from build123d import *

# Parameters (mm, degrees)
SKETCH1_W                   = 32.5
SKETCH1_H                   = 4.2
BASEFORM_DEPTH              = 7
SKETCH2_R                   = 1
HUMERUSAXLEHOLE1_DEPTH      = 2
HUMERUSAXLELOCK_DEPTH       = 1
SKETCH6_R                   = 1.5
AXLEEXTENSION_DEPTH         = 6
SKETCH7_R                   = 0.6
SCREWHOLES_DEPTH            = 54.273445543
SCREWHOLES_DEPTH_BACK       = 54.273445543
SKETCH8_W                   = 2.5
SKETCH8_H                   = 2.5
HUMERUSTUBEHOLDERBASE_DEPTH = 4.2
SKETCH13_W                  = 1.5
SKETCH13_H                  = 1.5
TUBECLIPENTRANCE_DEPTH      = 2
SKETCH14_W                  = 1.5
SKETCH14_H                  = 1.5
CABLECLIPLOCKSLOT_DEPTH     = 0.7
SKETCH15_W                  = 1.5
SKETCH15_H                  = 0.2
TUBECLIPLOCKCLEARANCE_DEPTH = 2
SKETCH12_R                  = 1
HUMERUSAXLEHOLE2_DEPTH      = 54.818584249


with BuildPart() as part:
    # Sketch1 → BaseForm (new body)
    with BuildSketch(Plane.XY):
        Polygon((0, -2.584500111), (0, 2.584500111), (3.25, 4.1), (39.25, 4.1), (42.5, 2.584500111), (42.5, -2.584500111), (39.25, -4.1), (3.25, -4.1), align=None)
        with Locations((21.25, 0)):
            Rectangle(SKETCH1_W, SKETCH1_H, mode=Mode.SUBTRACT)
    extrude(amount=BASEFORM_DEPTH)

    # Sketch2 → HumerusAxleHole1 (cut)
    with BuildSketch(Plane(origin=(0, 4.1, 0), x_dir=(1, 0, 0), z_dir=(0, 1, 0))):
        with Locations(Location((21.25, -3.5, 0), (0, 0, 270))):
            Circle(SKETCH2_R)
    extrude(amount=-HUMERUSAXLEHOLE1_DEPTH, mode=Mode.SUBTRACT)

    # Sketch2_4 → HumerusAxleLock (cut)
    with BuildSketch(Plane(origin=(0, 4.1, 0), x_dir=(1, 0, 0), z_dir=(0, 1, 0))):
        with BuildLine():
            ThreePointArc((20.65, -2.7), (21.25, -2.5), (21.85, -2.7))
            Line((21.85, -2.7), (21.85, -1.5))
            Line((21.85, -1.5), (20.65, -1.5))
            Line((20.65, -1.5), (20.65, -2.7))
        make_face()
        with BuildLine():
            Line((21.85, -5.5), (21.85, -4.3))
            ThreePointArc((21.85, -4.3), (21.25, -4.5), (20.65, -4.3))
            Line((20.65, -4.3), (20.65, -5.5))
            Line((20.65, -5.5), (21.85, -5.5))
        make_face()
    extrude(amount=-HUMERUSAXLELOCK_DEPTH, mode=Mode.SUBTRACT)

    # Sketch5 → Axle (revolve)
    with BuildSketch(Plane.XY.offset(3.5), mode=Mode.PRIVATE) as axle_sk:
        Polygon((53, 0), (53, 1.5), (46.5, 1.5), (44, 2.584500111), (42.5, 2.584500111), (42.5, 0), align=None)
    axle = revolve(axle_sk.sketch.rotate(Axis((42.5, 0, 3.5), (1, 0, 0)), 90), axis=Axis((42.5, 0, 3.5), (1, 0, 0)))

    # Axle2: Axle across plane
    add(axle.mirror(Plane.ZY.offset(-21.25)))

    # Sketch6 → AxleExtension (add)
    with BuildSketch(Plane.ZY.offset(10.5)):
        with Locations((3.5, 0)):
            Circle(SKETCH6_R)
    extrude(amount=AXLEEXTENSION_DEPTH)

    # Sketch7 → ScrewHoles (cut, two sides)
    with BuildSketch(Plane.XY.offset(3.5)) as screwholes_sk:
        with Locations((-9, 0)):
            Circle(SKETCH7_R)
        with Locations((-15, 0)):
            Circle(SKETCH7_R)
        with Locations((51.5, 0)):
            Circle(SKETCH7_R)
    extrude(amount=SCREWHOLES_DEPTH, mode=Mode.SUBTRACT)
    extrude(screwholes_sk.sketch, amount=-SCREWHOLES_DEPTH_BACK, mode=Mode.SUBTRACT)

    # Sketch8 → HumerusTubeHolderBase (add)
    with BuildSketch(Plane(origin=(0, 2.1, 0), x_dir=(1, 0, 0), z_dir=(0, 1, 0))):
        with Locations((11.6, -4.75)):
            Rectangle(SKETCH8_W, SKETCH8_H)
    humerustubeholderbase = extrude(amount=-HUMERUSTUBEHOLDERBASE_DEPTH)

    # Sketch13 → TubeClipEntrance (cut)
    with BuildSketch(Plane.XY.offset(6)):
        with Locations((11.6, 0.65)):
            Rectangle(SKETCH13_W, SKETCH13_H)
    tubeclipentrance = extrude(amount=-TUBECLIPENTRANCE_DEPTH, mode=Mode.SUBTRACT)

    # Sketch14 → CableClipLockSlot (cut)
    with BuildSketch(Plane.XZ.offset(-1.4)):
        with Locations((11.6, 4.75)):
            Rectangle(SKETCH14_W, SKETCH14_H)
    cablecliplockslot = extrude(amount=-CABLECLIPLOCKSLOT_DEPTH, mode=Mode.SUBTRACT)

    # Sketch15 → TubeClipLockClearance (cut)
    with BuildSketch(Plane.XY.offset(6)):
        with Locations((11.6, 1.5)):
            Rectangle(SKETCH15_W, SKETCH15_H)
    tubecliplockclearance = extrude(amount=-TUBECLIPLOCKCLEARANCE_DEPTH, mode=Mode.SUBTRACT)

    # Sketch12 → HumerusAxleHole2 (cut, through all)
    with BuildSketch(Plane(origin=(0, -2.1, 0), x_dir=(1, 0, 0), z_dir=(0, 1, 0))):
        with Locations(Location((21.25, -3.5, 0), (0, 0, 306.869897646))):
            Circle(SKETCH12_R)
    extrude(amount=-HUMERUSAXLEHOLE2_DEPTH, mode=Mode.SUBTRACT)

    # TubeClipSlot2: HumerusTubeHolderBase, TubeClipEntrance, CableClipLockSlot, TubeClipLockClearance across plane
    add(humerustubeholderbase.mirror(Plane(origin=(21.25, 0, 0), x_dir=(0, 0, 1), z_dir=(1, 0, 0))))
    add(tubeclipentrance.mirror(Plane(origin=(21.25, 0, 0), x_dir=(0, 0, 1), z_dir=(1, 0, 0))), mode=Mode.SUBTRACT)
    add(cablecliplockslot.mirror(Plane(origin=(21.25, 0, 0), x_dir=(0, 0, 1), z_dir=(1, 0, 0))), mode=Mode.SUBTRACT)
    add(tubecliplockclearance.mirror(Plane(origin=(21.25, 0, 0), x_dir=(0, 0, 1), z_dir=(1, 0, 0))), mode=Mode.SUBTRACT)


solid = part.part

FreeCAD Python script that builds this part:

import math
import FreeCAD as App
import Part
import Sketcher
Q = App.Units.Quantity

doc = App.newDocument("Part")
params = doc.addObject("Spreadsheet::Sheet", "Params")
for row, (alias, value) in enumerate([
    ("sketch1_width", "36 mm"),
    ("sketch1_width2", "32.5 mm"),
    ("sketch1_height", "4.2 mm"),
    ("pad1_length", "7 mm"),
    ("sketch2_diameter", "2 mm"),
    ("pocket1_length", "2 mm"),
    ("sketch3_radius", "1 mm"),
    ("sketch3_width", "1.2 mm"),
    ("pocket2_length", "1 mm"),
    ("sketch4_width", "6.5 mm"),
    ("sketch4_width2", "1.5 mm"),
    ("sketch4_width3", "10.5 mm"),
    ("revolution_angle", "360 deg"),
    ("sketch5_diameter", "3 mm"),
    ("pad2_length", "6 mm"),
    ("sketch6_diameter", "1.2 mm"),
    ("sketch7_width", "2.5 mm"),
    ("pad3_length", "4.2 mm"),
    ("sketch8_width", "1.5 mm"),
    ("pocket4_length", "2 mm"),
    ("sketch9_width", "1.5 mm"),
    ("pocket5_length", "0.7 mm"),
    ("sketch10_width", "1.5 mm"),
    ("sketch10_height", "0.2 mm"),
    ("pocket6_length", "2 mm"),
    ("sketch11_diameter", "2 mm"),
], start=1):
    params.set(f"A{row}", alias)
    params.set(f"B{row}", "=" + value)
    params.setAlias(f"B{row}", alias)

body = doc.addObject("PartDesign::Body", "Body")

# Sketch on XY plane
sketch1 = body.newObject("Sketcher::SketchObject", "Sketch")
sketch1.AttachmentSupport = (doc.getObject("XY_Plane"), [""])
sketch1.MapMode = "FlatFace"
sketch1.addGeometry([
    Part.LineSegment(App.Vector(0, 2.5845, 0), App.Vector(0, -2.5845, 0)),  # 0
    Part.LineSegment(App.Vector(0, -2.5845, 0), App.Vector(3.25, -4.1, 0)),  # 1
    Part.LineSegment(App.Vector(3.25, -4.1, 0), App.Vector(39.25, -4.1, 0)),  # 2
    Part.LineSegment(App.Vector(39.25, -4.1, 0), App.Vector(42.5, -2.5845, 0)),  # 3
    Part.LineSegment(App.Vector(42.5, -2.5845, 0), App.Vector(42.5, 2.5845, 0)),  # 4
    Part.LineSegment(App.Vector(42.5, 2.5845, 0), App.Vector(39.25, 4.1, 0)),  # 5
    Part.LineSegment(App.Vector(39.25, 4.1, 0), App.Vector(3.25, 4.1, 0)),  # 6
    Part.LineSegment(App.Vector(3.25, 4.1, 0), App.Vector(0, 2.5845, 0)),  # 7
    Part.LineSegment(App.Vector(5, -2.1, 0), App.Vector(5, 2.1, 0)),  # 8
    Part.LineSegment(App.Vector(5, 2.1, 0), App.Vector(37.5, 2.1, 0)),  # 9
    Part.LineSegment(App.Vector(37.5, 2.1, 0), App.Vector(37.5, -2.1, 0)),  # 10
    Part.LineSegment(App.Vector(37.5, -2.1, 0), App.Vector(5, -2.1, 0)),  # 11
], False)
sketch1.addConstraint([
    Sketcher.Constraint("Coincident", 0, 2, 1, 1),
    Sketcher.Constraint("Coincident", 1, 2, 2, 1),
    Sketcher.Constraint("Coincident", 2, 2, 3, 1),
    Sketcher.Constraint("Coincident", 3, 2, 4, 1),
    Sketcher.Constraint("Coincident", 4, 2, 5, 1),
    Sketcher.Constraint("Coincident", 5, 2, 6, 1),
    Sketcher.Constraint("Coincident", 6, 2, 7, 1),
    Sketcher.Constraint("Coincident", 7, 2, 0, 1),
    Sketcher.Constraint("Coincident", 8, 2, 9, 1),
    Sketcher.Constraint("Coincident", 9, 2, 10, 1),
    Sketcher.Constraint("Coincident", 10, 2, 11, 1),
    Sketcher.Constraint("Coincident", 11, 2, 8, 1),
    Sketcher.Constraint("Vertical", 0),
    Sketcher.Constraint("Horizontal", 2),
    Sketcher.Constraint("Vertical", 4),
    Sketcher.Constraint("Horizontal", 6),
    Sketcher.Constraint("Vertical", 8),
    Sketcher.Constraint("Horizontal", 9),
    Sketcher.Constraint("Vertical", 10),
    Sketcher.Constraint("Horizontal", 11),
    Sketcher.Constraint("Symmetric", 0, 2, 7, 2, -1, 1),
    Sketcher.Constraint("Symmetric", 2, 2, 5, 2, -1),
    Sketcher.Constraint("Parallel", 1, 5),
    Sketcher.Constraint("Parallel", 3, 7),
    Sketcher.Constraint("Horizontal", 0, 2, 3, 2),
    Sketcher.Constraint("Horizontal", 4, 2, 7, 2),
    Sketcher.Constraint("DistanceX", 2, 1, 2, 2, 36.0),
    Sketcher.Constraint("Angle", 1, Q("-25 deg")),
    Sketcher.Constraint("DistanceX", 9, 1, 9, 2, 32.5),
    Sketcher.Constraint("DistanceY", 8, 1, 8, 2, 4.2),
    Sketcher.Constraint("DistanceX", -1, 1, 8, 2, 5.0),
    Sketcher.Constraint("DistanceY", 8, 2, 6, 2, 2.0),
    Sketcher.Constraint("DistanceX", 9, 2, 4, 2, 5.0),
    Sketcher.Constraint("DistanceY", 2, 2, 10, 2, 2.0),
])
sketch1.setExpression("Constraints[26]", "Params.sketch1_width")
sketch1.setExpression("Constraints[28]", "Params.sketch1_width2")
sketch1.setExpression("Constraints[29]", "Params.sketch1_height")
pad1 = body.newObject("PartDesign::Pad", "Pad")
pad1.Profile = sketch1
pad1.setExpression("Length", "Params.pad1_length")

# Sketch on XZ plane
sketch2 = body.newObject("Sketcher::SketchObject", "Sketch001")
sketch2.AttachmentSupport = (doc.getObject("XZ_Plane"), [""])
sketch2.MapMode = "FlatFace"
sketch2.AttachmentOffset = App.Placement(App.Vector(0, 0, -4.1), App.Rotation())
sketch2.addGeometry(Part.Circle(App.Vector(21.25, 3.5, 0), App.Vector(0, 0, 1), 1), False)
sketch2.addConstraint([
    Sketcher.Constraint("Diameter", 0, 2.0),
    Sketcher.Constraint("DistanceY", -1, 1, 0, 3, 3.5),
    Sketcher.Constraint("DistanceX", -1, 1, 0, 3, 21.25),
])
sketch2.setExpression("Constraints[0]", "Params.sketch2_diameter")
pocket1 = body.newObject("PartDesign::Pocket", "Pocket")
pocket1.Profile = sketch2
pocket1.setExpression("Length", "Params.pocket1_length")
pocket1.Reversed = True

# Sketch on XZ plane
sketch3 = body.newObject("Sketcher::SketchObject", "Sketch002")
sketch3.AttachmentSupport = (doc.getObject("XZ_Plane"), [""])
sketch3.MapMode = "FlatFace"
sketch3.AttachmentOffset = App.Placement(App.Vector(0, 0, -4.1), App.Rotation())
sketch3.addGeometry([
    Part.ArcOfCircle(Part.Circle(App.Vector(21.25, 3.5, 0), App.Vector(0, 0, 1), 1), math.radians(-126.869898), math.radians(-53.130102)),  # 0
    Part.LineSegment(App.Vector(21.85, 2.7, 0), App.Vector(21.85, 1.5, 0)),  # 1
    Part.LineSegment(App.Vector(21.85, 1.5, 0), App.Vector(20.65, 1.5, 0)),  # 2
    Part.LineSegment(App.Vector(20.65, 1.5, 0), App.Vector(20.65, 2.7, 0)),  # 3
    Part.LineSegment(App.Vector(21.85, 5.5, 0), App.Vector(21.85, 4.3, 0)),  # 4
    Part.ArcOfCircle(Part.Circle(App.Vector(21.25, 3.5, 0), App.Vector(0, 0, 1), 1), math.radians(53.130102), math.radians(126.869898)),  # 5
    Part.LineSegment(App.Vector(20.65, 4.3, 0), App.Vector(20.65, 5.5, 0)),  # 6
    Part.LineSegment(App.Vector(20.65, 5.5, 0), App.Vector(21.85, 5.5, 0)),  # 7
], False)
sketch3.addConstraint([
    Sketcher.Constraint("Coincident", 0, 2, 1, 1),
    Sketcher.Constraint("Coincident", 1, 2, 2, 1),
    Sketcher.Constraint("Coincident", 2, 2, 3, 1),
    Sketcher.Constraint("Coincident", 3, 2, 0, 1),
    Sketcher.Constraint("Coincident", 4, 2, 5, 1),
    Sketcher.Constraint("Coincident", 5, 2, 6, 1),
    Sketcher.Constraint("Coincident", 6, 2, 7, 1),
    Sketcher.Constraint("Coincident", 7, 2, 4, 1),
    Sketcher.Constraint("Vertical", 1),
    Sketcher.Constraint("Horizontal", 2),
    Sketcher.Constraint("Vertical", 3),
    Sketcher.Constraint("Vertical", 4),
    Sketcher.Constraint("Vertical", 6),
    Sketcher.Constraint("Horizontal", 7),
    Sketcher.Constraint("Coincident", 5, 3, 0, 3),
    Sketcher.Constraint("Equal", 0, 5),
    Sketcher.Constraint("Horizontal", 0, 2, 3, 2),
    Sketcher.Constraint("Horizontal", 4, 2, 5, 2),
    Sketcher.Constraint("Vertical", 1, 2, 4, 2),
    Sketcher.Constraint("Equal", 7, 1),
    Sketcher.Constraint("Equal", 3, 4),
    Sketcher.Constraint("Radius", 0, 1.0),
    Sketcher.Constraint("DistanceX", 2, 2, 2, 1, 1.2),
    Sketcher.Constraint("DistanceY", -1, 1, 0, 3, 3.5),
    Sketcher.Constraint("DistanceX", -1, 1, 0, 3, 21.25),
])
sketch3.setExpression("Constraints[21]", "Params.sketch3_radius")
sketch3.setExpression("Constraints[22]", "Params.sketch3_width")
pocket2 = body.newObject("PartDesign::Pocket", "Pocket001")
pocket2.Profile = sketch3
pocket2.setExpression("Length", "Params.pocket2_length")
pocket2.Reversed = True

# Sketch on XY plane
sketch4 = body.newObject("Sketcher::SketchObject", "Sketch003")
sketch4.AttachmentSupport = (doc.getObject("XY_Plane"), [""])
sketch4.MapMode = "FlatFace"
sketch4.AttachmentOffset = App.Placement(App.Vector(0, 0, 3.5), App.Rotation())
sketch4.addGeometry([
    Part.LineSegment(App.Vector(53, 0, 0), App.Vector(53, 1.5, 0)),  # 0
    Part.LineSegment(App.Vector(53, 1.5, 0), App.Vector(46.5, 1.5, 0)),  # 1
    Part.LineSegment(App.Vector(46.5, 1.5, 0), App.Vector(44, 2.5845, 0)),  # 2
    Part.LineSegment(App.Vector(44, 2.5845, 0), App.Vector(42.5, 2.5845, 0)),  # 3
    Part.LineSegment(App.Vector(42.5, 2.5845, 0), App.Vector(42.5, 0, 0)),  # 4
    Part.LineSegment(App.Vector(42.5, 0, 0), App.Vector(53, 0, 0)),  # 5
], False)
sketch4.addConstraint([
    Sketcher.Constraint("Coincident", 0, 2, 1, 1),
    Sketcher.Constraint("Coincident", 1, 2, 2, 1),
    Sketcher.Constraint("Coincident", 2, 2, 3, 1),
    Sketcher.Constraint("Coincident", 3, 2, 4, 1),
    Sketcher.Constraint("Coincident", 4, 2, 5, 1),
    Sketcher.Constraint("Coincident", 5, 2, 0, 1),
    Sketcher.Constraint("Vertical", 0),
    Sketcher.Constraint("Horizontal", 1),
    Sketcher.Constraint("Horizontal", 3),
    Sketcher.Constraint("Vertical", 4),
    Sketcher.Constraint("Horizontal", 5),
    Sketcher.Constraint("PointOnObject", 4, 2, -1),
    Sketcher.Constraint("Equal", 3, 0),
    Sketcher.Constraint("DistanceX", 1, 2, 1, 1, 6.5),
    Sketcher.Constraint("DistanceX", 3, 2, 3, 1, 1.5),
    Sketcher.Constraint("DistanceX", 5, 1, 5, 2, 10.5),
    Sketcher.Constraint("DistanceX", -1, 1, 0, 2, 53.0),
    Sketcher.Constraint("DistanceY", 4, 2, 4, 1, 2.5845),
])
sketch4.setExpression("Constraints[13]", "Params.sketch4_width")
sketch4.setExpression("Constraints[14]", "Params.sketch4_width2")
sketch4.setExpression("Constraints[15]", "Params.sketch4_width3")
revolution = body.newObject("PartDesign::Revolution", "Revolution")
revolution.Profile = sketch4
revolution.ReferenceAxis = (sketch4, ["H_Axis"])
revolution.setExpression("Angle", "Params.revolution_angle")
doc.recompute()

datumplane = body.newObject("PartDesign::Plane", "DatumPlane")
datumplane.AttachmentSupport = (doc.getObject("YZ_Plane"), [""])
datumplane.MapMode = "FlatFace"
datumplane.AttachmentOffset = App.Placement(App.Vector(0, 0, 21.25), App.Rotation())
mirrored = body.newObject("PartDesign::Mirrored", "Mirrored")
mirrored.Originals = [revolution]
mirrored.MirrorPlane = (datumplane, [""])
body.Tip = mirrored

# Sketch on YZ plane
sketch5 = body.newObject("Sketcher::SketchObject", "Sketch004")
sketch5.AttachmentSupport = (doc.getObject("YZ_Plane"), [""])
sketch5.MapMode = "FlatFace"
sketch5.AttachmentOffset = App.Placement(App.Vector(0, 0, -10.5), App.Rotation())
sketch5.addGeometry(Part.Circle(App.Vector(0, 3.5, 0), App.Vector(0, 0, 1), 1.5), False)
sketch5.addConstraint([
    Sketcher.Constraint("PointOnObject", 0, 3, -2),
    Sketcher.Constraint("Diameter", 0, 3.0),
    Sketcher.Constraint("DistanceY", -1, 1, 0, 3, 3.5),
])
sketch5.setExpression("Constraints[1]", "Params.sketch5_diameter")
pad2 = body.newObject("PartDesign::Pad", "Pad001")
pad2.Profile = sketch5
pad2.setExpression("Length", "Params.pad2_length")
pad2.Reversed = True

# Sketch on XY plane
sketch6 = body.newObject("Sketcher::SketchObject", "Sketch005")
sketch6.AttachmentSupport = (doc.getObject("XY_Plane"), [""])
sketch6.MapMode = "FlatFace"
sketch6.AttachmentOffset = App.Placement(App.Vector(0, 0, 3.5), App.Rotation())
sketch6.addGeometry([
    Part.Circle(App.Vector(-9, 0, 0), App.Vector(0, 0, 1), 0.6),
    Part.Circle(App.Vector(-15, 0, 0), App.Vector(0, 0, 1), 0.6),
    Part.Circle(App.Vector(51.5, 0, 0), App.Vector(0, 0, 1), 0.6),
], False)
sketch6.addConstraint([
    Sketcher.Constraint("Equal", 0, 1),
    Sketcher.Constraint("Equal", 1, 2),
    Sketcher.Constraint("PointOnObject", 0, 3, -1),
    Sketcher.Constraint("PointOnObject", 1, 3, -1),
    Sketcher.Constraint("PointOnObject", 2, 3, -1),
    Sketcher.Constraint("Diameter", 0, 1.2),
    Sketcher.Constraint("DistanceX", 0, 3, -1, 1, 9.0),
    Sketcher.Constraint("DistanceX", 1, 3, -1, 1, 15.0),
    Sketcher.Constraint("DistanceX", -1, 1, 2, 3, 51.5),
])
sketch6.setExpression("Constraints[5]", "Params.sketch6_diameter")
pocket3 = body.newObject("PartDesign::Pocket", "Pocket002")
pocket3.Profile = sketch6
pocket3.Type = "ThroughAll"
pocket3.Midplane = True

# Sketch on XZ plane
sketch7 = body.newObject("Sketcher::SketchObject", "Sketch006")
sketch7.AttachmentSupport = (doc.getObject("XZ_Plane"), [""])
sketch7.MapMode = "FlatFace"
sketch7.AttachmentOffset = App.Placement(App.Vector(0, 0, -2.1), App.Rotation())
sketch7.addGeometry([
    Part.LineSegment(App.Vector(10.35, 3.5, 0), App.Vector(10.35, 6, 0)),
    Part.LineSegment(App.Vector(10.35, 6, 0), App.Vector(12.85, 6, 0)),
    Part.LineSegment(App.Vector(12.85, 6, 0), App.Vector(12.85, 3.5, 0)),
    Part.LineSegment(App.Vector(12.85, 3.5, 0), App.Vector(10.35, 3.5, 0)),
], False)
sketch7.addConstraint([
    Sketcher.Constraint("Coincident", 0, 2, 1, 1),
    Sketcher.Constraint("Coincident", 1, 2, 2, 1),
    Sketcher.Constraint("Coincident", 2, 2, 3, 1),
    Sketcher.Constraint("Coincident", 3, 2, 0, 1),
    Sketcher.Constraint("Vertical", 0),
    Sketcher.Constraint("Horizontal", 1),
    Sketcher.Constraint("Vertical", 2),
    Sketcher.Constraint("Horizontal", 3),
    Sketcher.Constraint("Equal", 3, 0),
    Sketcher.Constraint("DistanceX", 1, 1, 1, 2, 2.5),
    Sketcher.Constraint("DistanceY", -1, 1, 0, 2, 6.0),
    Sketcher.Constraint("DistanceX", -1, 1, 0, 2, 10.35),
])
sketch7.setExpression("Constraints[9]", "Params.sketch7_width")
pad3 = body.newObject("PartDesign::Pad", "Pad002")
pad3.Profile = sketch7
pad3.setExpression("Length", "Params.pad3_length")

# Sketch on XY plane
sketch8 = body.newObject("Sketcher::SketchObject", "Sketch007")
sketch8.AttachmentSupport = (doc.getObject("XY_Plane"), [""])
sketch8.MapMode = "FlatFace"
sketch8.AttachmentOffset = App.Placement(App.Vector(0, 0, 6), App.Rotation())
sketch8.addGeometry([
    Part.LineSegment(App.Vector(10.85, 1.4, 0), App.Vector(10.85, -0.1, 0)),
    Part.LineSegment(App.Vector(10.85, -0.1, 0), App.Vector(12.35, -0.1, 0)),
    Part.LineSegment(App.Vector(12.35, -0.1, 0), App.Vector(12.35, 1.4, 0)),
    Part.LineSegment(App.Vector(12.35, 1.4, 0), App.Vector(10.85, 1.4, 0)),
], False)
sketch8.addConstraint([
    Sketcher.Constraint("Coincident", 0, 2, 1, 1),
    Sketcher.Constraint("Coincident", 1, 2, 2, 1),
    Sketcher.Constraint("Coincident", 2, 2, 3, 1),
    Sketcher.Constraint("Coincident", 3, 2, 0, 1),
    Sketcher.Constraint("Vertical", 0),
    Sketcher.Constraint("Horizontal", 1),
    Sketcher.Constraint("Vertical", 2),
    Sketcher.Constraint("Horizontal", 3),
    Sketcher.Constraint("Equal", 3, 0),
    Sketcher.Constraint("DistanceX", 1, 1, 1, 2, 1.5),
    Sketcher.Constraint("DistanceY", 0, 2, -1, 1, 0.1),
    Sketcher.Constraint("DistanceX", -1, 1, 0, 2, 10.85),
])
sketch8.setExpression("Constraints[9]", "Params.sketch8_width")
pocket4 = body.newObject("PartDesign::Pocket", "Pocket003")
pocket4.Profile = sketch8
pocket4.setExpression("Length", "Params.pocket4_length")

# Sketch on XZ plane
sketch9 = body.newObject("Sketcher::SketchObject", "Sketch008")
sketch9.AttachmentSupport = (doc.getObject("XZ_Plane"), [""])
sketch9.MapMode = "FlatFace"
sketch9.AttachmentOffset = App.Placement(App.Vector(0, 0, -1.4), App.Rotation())
sketch9.addGeometry([
    Part.LineSegment(App.Vector(10.85, 5.5, 0), App.Vector(10.85, 4, 0)),
    Part.LineSegment(App.Vector(10.85, 4, 0), App.Vector(12.35, 4, 0)),
    Part.LineSegment(App.Vector(12.35, 4, 0), App.Vector(12.35, 5.5, 0)),
    Part.LineSegment(App.Vector(12.35, 5.5, 0), App.Vector(10.85, 5.5, 0)),
], False)
sketch9.addConstraint([
    Sketcher.Constraint("Coincident", 0, 2, 1, 1),
    Sketcher.Constraint("Coincident", 1, 2, 2, 1),
    Sketcher.Constraint("Coincident", 2, 2, 3, 1),
    Sketcher.Constraint("Coincident", 3, 2, 0, 1),
    Sketcher.Constraint("Vertical", 0),
    Sketcher.Constraint("Horizontal", 1),
    Sketcher.Constraint("Vertical", 2),
    Sketcher.Constraint("Horizontal", 3),
    Sketcher.Constraint("Equal", 3, 0),
    Sketcher.Constraint("DistanceX", 1, 1, 1, 2, 1.5),
    Sketcher.Constraint("DistanceY", -1, 1, 0, 2, 4.0),
    Sketcher.Constraint("DistanceX", -1, 1, 0, 2, 10.85),
])
sketch9.setExpression("Constraints[9]", "Params.sketch9_width")
pocket5 = body.newObject("PartDesign::Pocket", "Pocket004")
pocket5.Profile = sketch9
pocket5.setExpression("Length", "Params.pocket5_length")

# Sketch on XY plane
sketch10 = body.newObject("Sketcher::SketchObject", "Sketch009")
sketch10.AttachmentSupport = (doc.getObject("XY_Plane"), [""])
sketch10.MapMode = "FlatFace"
sketch10.AttachmentOffset = App.Placement(App.Vector(0, 0, 6), App.Rotation())
sketch10.addGeometry([
    Part.LineSegment(App.Vector(10.85, 1.6, 0), App.Vector(10.85, 1.4, 0)),
    Part.LineSegment(App.Vector(10.85, 1.4, 0), App.Vector(12.35, 1.4, 0)),
    Part.LineSegment(App.Vector(12.35, 1.4, 0), App.Vector(12.35, 1.6, 0)),
    Part.LineSegment(App.Vector(12.35, 1.6, 0), App.Vector(10.85, 1.6, 0)),
], False)
sketch10.addConstraint([
    Sketcher.Constraint("Coincident", 0, 2, 1, 1),
    Sketcher.Constraint("Coincident", 1, 2, 2, 1),
    Sketcher.Constraint("Coincident", 2, 2, 3, 1),
    Sketcher.Constraint("Coincident", 3, 2, 0, 1),
    Sketcher.Constraint("Vertical", 0),
    Sketcher.Constraint("Horizontal", 1),
    Sketcher.Constraint("Vertical", 2),
    Sketcher.Constraint("Horizontal", 3),
    Sketcher.Constraint("DistanceX", 1, 1, 1, 2, 1.5),
    Sketcher.Constraint("DistanceY", 0, 2, 0, 1, 0.2),
    Sketcher.Constraint("DistanceY", -1, 1, 0, 2, 1.4),
    Sketcher.Constraint("DistanceX", -1, 1, 0, 2, 10.85),
])
sketch10.setExpression("Constraints[8]", "Params.sketch10_width")
sketch10.setExpression("Constraints[9]", "Params.sketch10_height")
pocket6 = body.newObject("PartDesign::Pocket", "Pocket005")
pocket6.Profile = sketch10
pocket6.setExpression("Length", "Params.pocket6_length")

# Sketch on XZ plane
sketch11 = body.newObject("Sketcher::SketchObject", "Sketch010")
sketch11.AttachmentSupport = (doc.getObject("XZ_Plane"), [""])
sketch11.MapMode = "FlatFace"
sketch11.AttachmentOffset = App.Placement(App.Vector(0, 0, 2.1), App.Rotation())
sketch11.addGeometry(Part.Circle(App.Vector(21.25, 3.5, 0), App.Vector(0, 0, 1), 1), False)
sketch11.addConstraint([
    Sketcher.Constraint("Diameter", 0, 2.0),
    Sketcher.Constraint("DistanceY", -1, 1, 0, 3, 3.5),
    Sketcher.Constraint("DistanceX", -1, 1, 0, 3, 21.25),
])
sketch11.setExpression("Constraints[0]", "Params.sketch11_diameter")
pocket7 = body.newObject("PartDesign::Pocket", "Pocket006")
pocket7.Profile = sketch11
pocket7.Type = "ThroughAll"
pocket7.Reversed = True
doc.recompute()

datumplane2 = body.newObject("PartDesign::Plane", "DatumPlane001")
datumplane2.AttachmentSupport = (doc.getObject("YZ_Plane"), [""])
datumplane2.MapMode = "FlatFace"
datumplane2.AttachmentOffset = App.Placement(App.Vector(0, 0, 21.25), App.Rotation())
mirrored2 = body.newObject("PartDesign::Mirrored", "Mirrored001")
mirrored2.Originals = [pad3, pocket4, pocket5, pocket6]
mirrored2.MirrorPlane = (datumplane2, [""])
body.Tip = mirrored2

doc.recompute()
